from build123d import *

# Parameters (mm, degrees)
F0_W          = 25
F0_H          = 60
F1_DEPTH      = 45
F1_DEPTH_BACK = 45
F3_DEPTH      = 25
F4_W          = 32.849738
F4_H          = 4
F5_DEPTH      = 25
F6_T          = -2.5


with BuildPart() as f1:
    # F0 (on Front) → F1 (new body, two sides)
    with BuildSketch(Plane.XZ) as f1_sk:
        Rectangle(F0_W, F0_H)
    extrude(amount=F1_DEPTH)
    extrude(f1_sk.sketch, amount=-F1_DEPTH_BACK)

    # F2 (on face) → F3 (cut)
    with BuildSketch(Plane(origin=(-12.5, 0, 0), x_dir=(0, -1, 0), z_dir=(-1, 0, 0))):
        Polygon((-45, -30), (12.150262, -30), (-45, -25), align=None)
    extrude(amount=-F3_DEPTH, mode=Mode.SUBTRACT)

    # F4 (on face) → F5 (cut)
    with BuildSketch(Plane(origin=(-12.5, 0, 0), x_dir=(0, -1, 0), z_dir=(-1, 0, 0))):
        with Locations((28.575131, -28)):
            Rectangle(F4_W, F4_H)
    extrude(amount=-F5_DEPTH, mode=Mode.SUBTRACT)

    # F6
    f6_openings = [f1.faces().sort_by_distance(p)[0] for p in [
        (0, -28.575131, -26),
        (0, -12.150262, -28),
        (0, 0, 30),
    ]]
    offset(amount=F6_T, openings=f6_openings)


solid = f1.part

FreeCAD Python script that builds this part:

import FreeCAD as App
import Part
import Sketcher
from FreeCAD import Vector
Q = App.Units.Quantity


def faces_at(feature, points):
    """Names of the faces that lie closest to the given points."""
    faces = feature.Shape.Faces
    near = lambda p: min(range(len(faces)), key=lambda i: faces[i].distToShape(Part.Vertex(*p))[0])
    return sorted({f"Face{near(p) + 1}" for p in points})


def add_polygon(sketch, points):
    """Adds a closed chain of lines whose ends are joined by coincident constraints."""
    first, n = sketch.GeometryCount, len(points)
    for a, b in zip(points, points[1:] + points[:1]):
        sketch.addGeometry(Part.LineSegment(App.Vector(*a, 0), App.Vector(*b, 0)), False)
    for i in range(n):
        sketch.addConstraint(Sketcher.Constraint("Coincident", first + i, 2, first + (i + 1) % n, 1))

doc = App.newDocument("Part")
body = doc.addObject("PartDesign::Body", "Body")

# Sketch on XZ plane
sketch1 = body.newObject("Sketcher::SketchObject", "Sketch")
sketch1.AttachmentSupport = (doc.getObject("XZ_Plane"), [""])
sketch1.MapMode = "FlatFace"
add_polygon(sketch1, [(-12, 30), (-12, -30), (12, -30), (12, 30)])  # lines 0-3
sketch1.addConstraint([
    Sketcher.Constraint("Vertical", 0),
    Sketcher.Constraint("Horizontal", 1),
    Sketcher.Constraint("Vertical", 2),
    Sketcher.Constraint("Horizontal", 3),
    Sketcher.Constraint("Symmetric", 0, 2, 2, 2, -1, 1),
    Sketcher.Constraint("DistanceX", 1, 1, 1, 2, Q("25 mm")),
    Sketcher.Constraint("DistanceY", 0, 2, 0, 1, Q("60 mm")),
])
pad1 = body.newObject("PartDesign::Pad", "Pad")
pad1.Profile = sketch1
pad1.Type = "TwoLengths"
pad1.Length = 45
pad1.Length2 = 45

# Sketch on YZ plane
sketch2 = body.newObject("Sketcher::SketchObject", "Sketch001")
sketch2.AttachmentSupport = (doc.getObject("YZ_Plane"), [""])
sketch2.MapMode = "FlatFace"
sketch2.AttachmentOffset = App.Placement(Vector(0, 0, -12.5), App.Rotation())
add_polygon(sketch2, [(45, -30), (-12, -30), (45, -25)])  # lines 0-2
sketch2.addConstraint([
    Sketcher.Constraint("Horizontal", 0),
    Sketcher.Constraint("Vertical", 2),
    Sketcher.Constraint("DistanceY", 2, 2, 2, 1, Q("5 mm")),
    Sketcher.Constraint("Angle", 1, Q("5 deg")),
    Sketcher.Constraint("DistanceY", 0, 2, -1, 1, Q("30 mm")),
    Sketcher.Constraint("DistanceX", -1, 1, 1, 2, Q("45 mm")),
])
pocket1 = body.newObject("PartDesign::Pocket", "Pocket")
pocket1.Profile = sketch2
pocket1.Length = 25
pocket1.Reversed = True

# Sketch on YZ plane
sketch3 = body.newObject("Sketcher::SketchObject", "Sketch002")
sketch3.AttachmentSupport = (doc.getObject("YZ_Plane"), [""])
sketch3.MapMode = "FlatFace"
sketch3.AttachmentOffset = App.Placement(Vector(0, 0, -12.5), App.Rotation())
add_polygon(sketch3, [(-12.2, -26), (-12.2, -30), (-45, -30), (-45, -26)])  # lines 0-3
sketch3.addConstraint([
    Sketcher.Constraint("Vertical", 0),
    Sketcher.Constraint("Horizontal", 1),
    Sketcher.Constraint("Vertical", 2),
    Sketcher.Constraint("Horizontal", 3),
    Sketcher.Constraint("DistanceY", 0, 2, 0, 1, Q("4 mm")),
    Sketcher.Constraint("DistanceY", 0, 2, -1, 1, Q("30 mm")),
    Sketcher.Constraint("DistanceX", 1, 2, -1, 1, Q("45 mm")),
    Sketcher.Constraint("DistanceX", 1, 2, 1, 1, Q("32.849738 mm")),
])
pocket2 = body.newObject("PartDesign::Pocket", "Pocket001")
pocket2.Profile = sketch3
pocket2.Length = 25
pocket2.Reversed = True
doc.recompute()

thickness = body.newObject("PartDesign::Thickness", "Thickness")
thickness.Base = (pocket2, faces_at(pocket2, [(0, -28.575, -26), (0, -12.15, -28), (0, 0, 30)]))
thickness.Value = 2.5
thickness.Reversed = True
thickness.Join = "Arc"

doc.recompute()
